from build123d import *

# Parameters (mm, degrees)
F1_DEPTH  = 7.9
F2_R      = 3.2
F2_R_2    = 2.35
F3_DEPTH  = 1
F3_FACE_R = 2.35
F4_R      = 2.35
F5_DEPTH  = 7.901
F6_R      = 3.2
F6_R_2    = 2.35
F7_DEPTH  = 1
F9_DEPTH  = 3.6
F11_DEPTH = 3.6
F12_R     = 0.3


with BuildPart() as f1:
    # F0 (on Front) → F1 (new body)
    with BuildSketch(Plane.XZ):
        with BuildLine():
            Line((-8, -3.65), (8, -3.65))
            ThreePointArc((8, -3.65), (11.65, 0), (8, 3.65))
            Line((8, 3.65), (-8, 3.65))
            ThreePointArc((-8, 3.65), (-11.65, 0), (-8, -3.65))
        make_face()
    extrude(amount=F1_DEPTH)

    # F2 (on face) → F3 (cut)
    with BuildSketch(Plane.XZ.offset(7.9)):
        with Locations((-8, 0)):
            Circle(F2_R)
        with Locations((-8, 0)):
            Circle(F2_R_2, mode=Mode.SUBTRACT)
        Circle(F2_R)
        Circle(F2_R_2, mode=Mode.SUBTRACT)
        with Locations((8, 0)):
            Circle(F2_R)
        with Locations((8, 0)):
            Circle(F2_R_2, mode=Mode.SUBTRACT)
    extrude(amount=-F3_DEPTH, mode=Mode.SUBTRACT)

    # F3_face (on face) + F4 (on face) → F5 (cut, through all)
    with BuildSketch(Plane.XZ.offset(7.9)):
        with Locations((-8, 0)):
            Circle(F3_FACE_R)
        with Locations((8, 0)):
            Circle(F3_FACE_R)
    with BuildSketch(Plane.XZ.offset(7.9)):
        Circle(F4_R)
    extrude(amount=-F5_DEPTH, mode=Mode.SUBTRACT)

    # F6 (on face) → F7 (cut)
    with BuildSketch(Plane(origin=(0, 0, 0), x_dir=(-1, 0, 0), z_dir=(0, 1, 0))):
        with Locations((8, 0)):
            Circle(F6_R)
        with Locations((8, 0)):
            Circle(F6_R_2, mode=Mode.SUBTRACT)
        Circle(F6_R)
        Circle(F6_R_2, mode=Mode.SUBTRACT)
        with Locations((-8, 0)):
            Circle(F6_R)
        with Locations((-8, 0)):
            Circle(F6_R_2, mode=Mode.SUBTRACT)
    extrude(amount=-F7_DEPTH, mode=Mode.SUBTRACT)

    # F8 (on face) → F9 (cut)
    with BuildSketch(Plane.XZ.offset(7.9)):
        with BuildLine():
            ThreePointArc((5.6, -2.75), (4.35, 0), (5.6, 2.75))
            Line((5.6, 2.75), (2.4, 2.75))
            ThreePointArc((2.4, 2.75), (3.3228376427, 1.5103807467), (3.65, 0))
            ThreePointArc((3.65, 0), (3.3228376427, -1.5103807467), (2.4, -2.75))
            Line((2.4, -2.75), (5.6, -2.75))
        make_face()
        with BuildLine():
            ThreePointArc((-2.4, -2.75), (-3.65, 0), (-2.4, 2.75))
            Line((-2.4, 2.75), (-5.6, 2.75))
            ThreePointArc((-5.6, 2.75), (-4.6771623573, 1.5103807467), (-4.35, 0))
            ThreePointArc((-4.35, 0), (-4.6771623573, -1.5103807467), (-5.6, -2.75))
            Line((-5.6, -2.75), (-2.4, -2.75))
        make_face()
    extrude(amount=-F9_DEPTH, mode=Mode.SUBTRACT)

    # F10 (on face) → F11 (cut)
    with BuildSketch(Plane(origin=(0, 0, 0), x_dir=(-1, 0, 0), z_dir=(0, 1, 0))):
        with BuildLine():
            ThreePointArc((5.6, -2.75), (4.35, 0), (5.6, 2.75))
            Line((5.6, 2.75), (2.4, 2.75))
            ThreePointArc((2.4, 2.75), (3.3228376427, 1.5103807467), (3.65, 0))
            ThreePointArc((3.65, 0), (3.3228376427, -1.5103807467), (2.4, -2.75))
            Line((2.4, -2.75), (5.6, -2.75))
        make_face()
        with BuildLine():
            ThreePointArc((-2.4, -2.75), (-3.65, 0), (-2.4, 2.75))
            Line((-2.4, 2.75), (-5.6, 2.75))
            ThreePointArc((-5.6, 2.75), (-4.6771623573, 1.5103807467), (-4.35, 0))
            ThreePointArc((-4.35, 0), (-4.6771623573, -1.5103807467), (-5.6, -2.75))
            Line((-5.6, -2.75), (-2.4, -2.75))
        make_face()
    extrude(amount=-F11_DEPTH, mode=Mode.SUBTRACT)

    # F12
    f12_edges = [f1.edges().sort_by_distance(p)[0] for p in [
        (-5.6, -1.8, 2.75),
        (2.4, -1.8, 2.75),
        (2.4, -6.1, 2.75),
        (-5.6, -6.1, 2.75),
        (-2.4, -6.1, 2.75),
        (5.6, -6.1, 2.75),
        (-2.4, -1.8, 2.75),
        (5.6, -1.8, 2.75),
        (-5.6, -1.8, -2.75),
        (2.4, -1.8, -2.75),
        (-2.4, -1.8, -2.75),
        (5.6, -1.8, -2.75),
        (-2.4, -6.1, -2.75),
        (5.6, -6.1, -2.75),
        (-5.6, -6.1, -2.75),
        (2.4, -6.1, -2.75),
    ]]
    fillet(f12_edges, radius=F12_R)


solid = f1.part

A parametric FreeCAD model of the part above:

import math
import FreeCAD as App
import Part
import Sketcher
Q = App.Units.Quantity


def edges_at(feature, points):
    """Names of the edges that pass closest to the given points."""
    edges = feature.Shape.Edges
    near = lambda p: min(range(len(edges)), key=lambda i: edges[i].distToShape(Part.Vertex(*p))[0])
    return sorted({f"Edge{near(p) + 1}" for p in points})

doc = App.newDocument("Part")
body = doc.addObject("PartDesign::Body", "Body")

sketch1 = doc.addObject("Sketcher::SketchObject", "Sketch")
body.addObject(sketch1)
sketch1.AttachmentSupport = (doc.XZ_Plane, [""])
sketch1.MapMode = "FlatFace"
sketch1.addGeometry([
    Part.LineSegment(App.Vector(-8, -3.6, 0), App.Vector(8, -3.6, 0)),
    Part.ArcOfCircle(Part.Circle(App.Vector(8, 0, 0), App.Vector(0, 0, 1), 3.6), math.radians(-90), math.radians(90)),
    Part.LineSegment(App.Vector(8, 3.6, 0), App.Vector(-8, 3.6, 0)),
    Part.ArcOfCircle(Part.Circle(App.Vector(-8, 0, 0), App.Vector(0, 0, 1), 3.6), math.radians(90), math.radians(270)),
], False)
sketch1.addConstraint([
    Sketcher.Constraint("Tangent", 0, 2, 1, 1),
    Sketcher.Constraint("Tangent", 1, 2, 2, 1),
    Sketcher.Constraint("Tangent", 2, 2, 3, 1),
    Sketcher.Constraint("Tangent", 3, 2, 0, 1),
    Sketcher.Constraint("Horizontal", 0),
    Sketcher.Constraint("Horizontal", 2),
    Sketcher.Constraint("Symmetric", 1, 3, 3, 3, -1, 1),
    Sketcher.Constraint("DistanceX", 0, 1, 0, 2, Q("16 mm")),
    Sketcher.Constraint("Radius", 1, Q("3.65 mm")),
])
pad1 = doc.addObject("PartDesign::Pad", "Pad")
body.addObject(pad1)
pad1.Profile = sketch1
pad1.Length = 7.9

sketch2 = doc.addObject("Sketcher::SketchObject", "Sketch001")
body.addObject(sketch2)
sketch2.AttachmentSupport = (doc.XZ_Plane, [""])
sketch2.MapMode = "FlatFace"
sketch2.AttachmentOffset = App.Placement(App.Vector(0, 0, 7.9), App.Rotation())
sketch2.addGeometry([
    Part.Circle(App.Vector(-8, 0, 0), App.Vector(0, 0, 1), 3.2),
    Part.Circle(App.Vector(-8, 0, 0), App.Vector(0, 0, 1), 2.4),
    Part.Circle(App.Vector(0, 0, 0), App.Vector(0, 0, 1), 3.2),
    Part.Circle(App.Vector(0, 0, 0), App.Vector(0, 0, 1), 2.4),
    Part.Circle(App.Vector(8, 0, 0), App.Vector(0, 0, 1), 3.2),
    Part.Circle(App.Vector(8, 0, 0), App.Vector(0, 0, 1), 2.4),
], False)
sketch2.addConstraint([
    Sketcher.Constraint("Coincident", 2, 3, -1, 1),
    Sketcher.Constraint("Coincident", 3, 3, -1, 1),
    Sketcher.Constraint("Coincident", 1, 3, 0, 3),
    Sketcher.Constraint("Coincident", 5, 3, 4, 3),
    Sketcher.Constraint("Equal", 0, 2),
    Sketcher.Constraint("Equal", 1, 3),
    Sketcher.Constraint("Equal", 2, 4),
    Sketcher.Constraint("Equal", 3, 5),
    Sketcher.Constraint("Symmetric", 0, 3, 4, 3, -1, 1),
    Sketcher.Constraint("PointOnObject", 0, 3, -1),
    Sketcher.Constraint("Diameter", 0, Q("6.4 mm")),
    Sketcher.Constraint("Diameter", 1, Q("4.7 mm")),
    Sketcher.Constraint("DistanceX", 0, 3, -1, 1, Q("8 mm")),
])
pocket1 = doc.addObject("PartDesign::Pocket", "Pocket")
body.addObject(pocket1)
pocket1.Profile = sketch2
pocket1.Length = 1

sketch3 = doc.addObject("Sketcher::SketchObject", "Sketch002")
body.addObject(sketch3)
sketch3.AttachmentSupport = (doc.XZ_Plane, [""])
sketch3.MapMode = "FlatFace"
sketch3.AttachmentOffset = App.Placement(App.Vector(0, 0, 7.9), App.Rotation())
sketch3.addGeometry([
    Part.Circle(App.Vector(-8, 0, 0), App.Vector(0, 0, 1), 2.4),
    Part.Circle(App.Vector(8, 0, 0), App.Vector(0, 0, 1), 2.4),
    Part.Circle(App.Vector(0, 0, 0), App.Vector(0, 0, 1), 2.4),
], False)
sketch3.addConstraint([
    Sketcher.Constraint("Coincident", 2, 3, -1, 1),
    Sketcher.Constraint("Equal", 0, 1),
    Sketcher.Constraint("Equal", 1, 2),
    Sketcher.Constraint("Symmetric", 0, 3, 1, 3, -1, 1),
    Sketcher.Constraint("PointOnObject", 0, 3, -1),
    Sketcher.Constraint("Diameter", 0, Q("4.7 mm")),
    Sketcher.Constraint("DistanceX", 0, 3, -1, 1, Q("8 mm")),
])
pocket2 = doc.addObject("PartDesign::Pocket", "Pocket001")
body.addObject(pocket2)
pocket2.Profile = sketch3
pocket2.Type = "ThroughAll"

sketch4 = doc.addObject("Sketcher::SketchObject", "Sketch003")
body.addObject(sketch4)
sketch4.AttachmentSupport = (doc.XZ_Plane, [""])
sketch4.MapMode = "FlatFace"
sketch4.addGeometry([
    Part.Circle(App.Vector(-8, 0, 0), App.Vector(0, 0, 1), 3.2),
    Part.Circle(App.Vector(-8, 0, 0), App.Vector(0, 0, 1), 2.4),
    Part.Circle(App.Vector(0, 0, 0), App.Vector(0, 0, 1), 3.2),
    Part.Circle(App.Vector(0, 0, 0), App.Vector(0, 0, 1), 2.4),
    Part.Circle(App.Vector(8, 0, 0), App.Vector(0, 0, 1), 3.2),
    Part.Circle(App.Vector(8, 0, 0), App.Vector(0, 0, 1), 2.4),
], False)
sketch4.addConstraint([
    Sketcher.Constraint("Coincident", 2, 3, -1, 1),
    Sketcher.Constraint("Coincident", 3, 3, -1, 1),
    Sketcher.Constraint("Coincident", 1, 3, 0, 3),
    Sketcher.Constraint("Coincident", 5, 3, 4, 3),
    Sketcher.Constraint("Equal", 0, 2),
    Sketcher.Constraint("Equal", 1, 3),
    Sketcher.Constraint("Equal", 2, 4),
    Sketcher.Constraint("Equal", 3, 5),
    Sketcher.Constraint("Symmetric", 0, 3, 4, 3, -1, 1),
    Sketcher.Constraint("PointOnObject", 0, 3, -1),
    Sketcher.Constraint("Diameter", 0, Q("6.4 mm")),
    Sketcher.Constraint("Diameter", 1, Q("4.7 mm")),
    Sketcher.Constraint("DistanceX", 0, 3, -1, 1, Q("8 mm")),
])
pocket3 = doc.addObject("PartDesign::Pocket", "Pocket002")
body.addObject(pocket3)
pocket3.Profile = sketch4
pocket3.Length = 1
pocket3.Reversed = True

sketch5 = doc.addObject("Sketcher::SketchObject", "Sketch004")
body.addObject(sketch5)
sketch5.AttachmentSupport = (doc.XZ_Plane, [""])
sketch5.MapMode = "FlatFace"
sketch5.AttachmentOffset = App.Placement(App.Vector(0, 0, 7.9), App.Rotation())
sketch5.addGeometry([
    Part.ArcOfCircle(Part.Circle(App.Vector(8, 0, 0), App.Vector(0, 0, 1), 3.6), math.radians(131), math.radians(229)),
    Part.LineSegment(App.Vector(5.6, 2.8, 0), App.Vector(2.4, 2.8, 0)),
    Part.ArcOfCircle(Part.Circle(App.Vector(0, 0, 0), App.Vector(0, 0, 1), 3.6), math.radians(0), math.radians(49)),
    Part.ArcOfCircle(Part.Circle(App.Vector(0, 0, 0), App.Vector(0, 0, 1), 3.6), math.radians(-49), math.radians(0)),
    Part.LineSegment(App.Vector(2.4, -2.8, 0), App.Vector(5.6, -2.8, 0)),
    Part.ArcOfCircle(Part.Circle(App.Vector(0, 0, 0), App.Vector(0, 0, 1), 3.6), math.radians(131), math.radians(229)),
    Part.LineSegment(App.Vector(-2.4, 2.8, 0), App.Vector(-5.6, 2.8, 0)),
    Part.ArcOfCircle(Part.Circle(App.Vector(-8, 0, 0), App.Vector(0, 0, 1), 3.6), math.radians(0), math.radians(49)),
    Part.ArcOfCircle(Part.Circle(App.Vector(-8, 0, 0), App.Vector(0, 0, 1), 3.6), math.radians(-49), math.radians(0)),
    Part.LineSegment(App.Vector(-5.6, -2.8, 0), App.Vector(-2.4, -2.8, 0)),
], False)
sketch5.addConstraint([
    Sketcher.Constraint("Coincident", 0, 1, 1, 1),
    Sketcher.Constraint("Coincident", 1, 2, 2, 2),
    Sketcher.Constraint("Tangent", 2, 1, 3, 2),
    Sketcher.Constraint("Coincident", 3, 1, 4, 1),
    Sketcher.Constraint("Coincident", 4, 2, 0, 2),
    Sketcher.Constraint("Coincident", 5, 1, 6, 1),
    Sketcher.Constraint("Coincident", 6, 2, 7, 2),
    Sketcher.Constraint("Tangent", 7, 1, 8, 2),
    Sketcher.Constraint("Coincident", 8, 1, 9, 1),
    Sketcher.Constraint("Coincident", 9, 2, 5, 2),
    Sketcher.Constraint("Horizontal", 1),
    Sketcher.Constraint("Horizontal", 4),
    Sketcher.Constraint("Horizontal", 6),
    Sketcher.Constraint("Horizontal", 9),
    Sketcher.Constraint("Coincident", 2, 3, -1, 1),
    Sketcher.Constraint("Coincident", 5, 3, -1, 1),
    Sketcher.Constraint("Equal", 0, 2),
    Sketcher.Constraint("Equal", 2, 3),
    Sketcher.Constraint("Equal", 3, 5),
    Sketcher.Constraint("Equal", 5, 7),
    Sketcher.Constraint("Equal", 7, 8),
    Sketcher.Constraint("Symmetric", 0, 3, 7, 3, -1, 1),
    Sketcher.Constraint("Symmetric", 0, 1, 6, 2, -2),
    Sketcher.Constraint("PointOnObject", 2, 1, -1),
    Sketcher.Constraint("PointOnObject", 7, 1, -1),
    Sketcher.Constraint("Horizontal", 4, 2, 8, 1),
    Sketcher.Constraint("Vertical", 1, 2, 3, 1),
    Sketcher.Constraint("Radius", 0, Q("3.65 mm")),
    Sketcher.Constraint("DistanceX", 1, 2, 1, 1, Q("3.2 mm")),
    Sketcher.Constraint("DistanceX", -1, 1, 0, 3, Q("8 mm")),
])
pocket4 = doc.addObject("PartDesign::Pocket", "Pocket003")
body.addObject(pocket4)
pocket4.Profile = sketch5
pocket4.Length = 3.6

sketch6 = doc.addObject("Sketcher::SketchObject", "Sketch005")
body.addObject(sketch6)
sketch6.AttachmentSupport = (doc.XZ_Plane, [""])
sketch6.MapMode = "FlatFace"
sketch6.addGeometry([
    Part.ArcOfCircle(Part.Circle(App.Vector(-8, 0, 0), App.Vector(0, 0, 1), 3.6), math.radians(-49), math.radians(49)),
    Part.LineSegment(App.Vector(-5.6, 2.8, 0), App.Vector(-2.4, 2.8, 0)),
    Part.ArcOfCircle(Part.Circle(App.Vector(0, 0, 0), App.Vector(0, 0, 1), 3.6), math.radians(131), math.radians(180)),
    Part.ArcOfCircle(Part.Circle(App.Vector(0, 0, 0), App.Vector(0, 0, 1), 3.6), math.radians(180), math.radians(229)),
    Part.LineSegment(App.Vector(-2.4, -2.8, 0), App.Vector(-5.6, -2.8, 0)),
    Part.ArcOfCircle(Part.Circle(App.Vector(0, 0, 0), App.Vector(0, 0, 1), 3.6), math.radians(-49), math.radians(49)),
    Part.LineSegment(App.Vector(2.4, 2.8, 0), App.Vector(5.6, 2.8, 0)),
    Part.ArcOfCircle(Part.Circle(App.Vector(8, 0, 0), App.Vector(0, 0, 1), 3.6), math.radians(131), math.radians(180)),
    Part.ArcOfCircle(Part.Circle(App.Vector(8, 0, 0), App.Vector(0, 0, 1), 3.6), math.radians(180), math.radians(229)),
    Part.LineSegment(App.Vector(5.6, -2.8, 0), App.Vector(2.4, -2.8, 0)),
], False)
sketch6.addConstraint([
    Sketcher.Constraint("Coincident", 0, 2, 1, 1),
    Sketcher.Constraint("Coincident", 1, 2, 2, 1),
    Sketcher.Constraint("Tangent", 2, 2, 3, 1),
    Sketcher.Constraint("Coincident", 3, 2, 4, 1),
    Sketcher.Constraint("Coincident", 4, 2, 0, 1),
    Sketcher.Constraint("Coincident", 5, 2, 6, 1),
    Sketcher.Constraint("Coincident", 6, 2, 7, 1),
    Sketcher.Constraint("Tangent", 7, 2, 8, 1),
    Sketcher.Constraint("Coincident", 8, 2, 9, 1),
    Sketcher.Constraint("Coincident", 9, 2, 5, 1),
    Sketcher.Constraint("Horizontal", 1),
    Sketcher.Constraint("Horizontal", 4),
    Sketcher.Constraint("Horizontal", 6),
    Sketcher.Constraint("Horizontal", 9),
    Sketcher.Constraint("Coincident", 2, 3, -1, 1),
    Sketcher.Constraint("Coincident", 5, 3, -1, 1),
    Sketcher.Constraint("Equal", 0, 2),
    Sketcher.Constraint("Equal", 2, 3),
    Sketcher.Constraint("Equal", 3, 5),
    Sketcher.Constraint("Equal", 5, 7),
    Sketcher.Constraint("Equal", 7, 8),
    Sketcher.Constraint("Symmetric", 0, 3, 7, 3, -1, 1),
    Sketcher.Constraint("Symmetric", 0, 2, 6, 2, -2),
    Sketcher.Constraint("PointOnObject", 2, 2, -1),
    Sketcher.Constraint("PointOnObject", 7, 2, -1),
    Sketcher.Constraint("Horizontal", 4, 2, 8, 2),
    Sketcher.Constraint("Vertical", 1, 2, 3, 2),
    Sketcher.Constraint("Radius", 0, Q("3.65 mm")),
    Sketcher.Constraint("DistanceX", 1, 1, 1, 2, Q("3.2 mm")),
    Sketcher.Constraint("DistanceX", 0, 3, -1, 1, Q("8 mm")),
])
pocket5 = doc.addObject("PartDesign::Pocket", "Pocket004")
body.addObject(pocket5)
pocket5.Profile = sketch6
pocket5.Length = 3.6
pocket5.Reversed = True
doc.recompute()

fillet = doc.addObject("PartDesign::Fillet", "Fillet")
body.addObject(fillet)
fillet.Base = (pocket5, edges_at(pocket5, [
    (-5.6, -1.8, 2.75),
    (2.4, -1.8, 2.75),
    (2.4, -6.1, 2.75),
    (-5.6, -6.1, 2.75),
    (-2.4, -6.1, 2.75),
    (5.6, -6.1, 2.75),
    (-2.4, -1.8, 2.75),
    (5.6, -1.8, 2.75),
    (-5.6, -1.8, -2.75),
    (2.4, -1.8, -2.75),
    (-2.4, -1.8, -2.75),
    (5.6, -1.8, -2.75),
    (-2.4, -6.1, -2.75),
    (5.6, -6.1, -2.75),
    (-5.6, -6.1, -2.75),
    (2.4, -6.1, -2.75),
]))
fillet.Radius = 0.3

doc.recompute()
